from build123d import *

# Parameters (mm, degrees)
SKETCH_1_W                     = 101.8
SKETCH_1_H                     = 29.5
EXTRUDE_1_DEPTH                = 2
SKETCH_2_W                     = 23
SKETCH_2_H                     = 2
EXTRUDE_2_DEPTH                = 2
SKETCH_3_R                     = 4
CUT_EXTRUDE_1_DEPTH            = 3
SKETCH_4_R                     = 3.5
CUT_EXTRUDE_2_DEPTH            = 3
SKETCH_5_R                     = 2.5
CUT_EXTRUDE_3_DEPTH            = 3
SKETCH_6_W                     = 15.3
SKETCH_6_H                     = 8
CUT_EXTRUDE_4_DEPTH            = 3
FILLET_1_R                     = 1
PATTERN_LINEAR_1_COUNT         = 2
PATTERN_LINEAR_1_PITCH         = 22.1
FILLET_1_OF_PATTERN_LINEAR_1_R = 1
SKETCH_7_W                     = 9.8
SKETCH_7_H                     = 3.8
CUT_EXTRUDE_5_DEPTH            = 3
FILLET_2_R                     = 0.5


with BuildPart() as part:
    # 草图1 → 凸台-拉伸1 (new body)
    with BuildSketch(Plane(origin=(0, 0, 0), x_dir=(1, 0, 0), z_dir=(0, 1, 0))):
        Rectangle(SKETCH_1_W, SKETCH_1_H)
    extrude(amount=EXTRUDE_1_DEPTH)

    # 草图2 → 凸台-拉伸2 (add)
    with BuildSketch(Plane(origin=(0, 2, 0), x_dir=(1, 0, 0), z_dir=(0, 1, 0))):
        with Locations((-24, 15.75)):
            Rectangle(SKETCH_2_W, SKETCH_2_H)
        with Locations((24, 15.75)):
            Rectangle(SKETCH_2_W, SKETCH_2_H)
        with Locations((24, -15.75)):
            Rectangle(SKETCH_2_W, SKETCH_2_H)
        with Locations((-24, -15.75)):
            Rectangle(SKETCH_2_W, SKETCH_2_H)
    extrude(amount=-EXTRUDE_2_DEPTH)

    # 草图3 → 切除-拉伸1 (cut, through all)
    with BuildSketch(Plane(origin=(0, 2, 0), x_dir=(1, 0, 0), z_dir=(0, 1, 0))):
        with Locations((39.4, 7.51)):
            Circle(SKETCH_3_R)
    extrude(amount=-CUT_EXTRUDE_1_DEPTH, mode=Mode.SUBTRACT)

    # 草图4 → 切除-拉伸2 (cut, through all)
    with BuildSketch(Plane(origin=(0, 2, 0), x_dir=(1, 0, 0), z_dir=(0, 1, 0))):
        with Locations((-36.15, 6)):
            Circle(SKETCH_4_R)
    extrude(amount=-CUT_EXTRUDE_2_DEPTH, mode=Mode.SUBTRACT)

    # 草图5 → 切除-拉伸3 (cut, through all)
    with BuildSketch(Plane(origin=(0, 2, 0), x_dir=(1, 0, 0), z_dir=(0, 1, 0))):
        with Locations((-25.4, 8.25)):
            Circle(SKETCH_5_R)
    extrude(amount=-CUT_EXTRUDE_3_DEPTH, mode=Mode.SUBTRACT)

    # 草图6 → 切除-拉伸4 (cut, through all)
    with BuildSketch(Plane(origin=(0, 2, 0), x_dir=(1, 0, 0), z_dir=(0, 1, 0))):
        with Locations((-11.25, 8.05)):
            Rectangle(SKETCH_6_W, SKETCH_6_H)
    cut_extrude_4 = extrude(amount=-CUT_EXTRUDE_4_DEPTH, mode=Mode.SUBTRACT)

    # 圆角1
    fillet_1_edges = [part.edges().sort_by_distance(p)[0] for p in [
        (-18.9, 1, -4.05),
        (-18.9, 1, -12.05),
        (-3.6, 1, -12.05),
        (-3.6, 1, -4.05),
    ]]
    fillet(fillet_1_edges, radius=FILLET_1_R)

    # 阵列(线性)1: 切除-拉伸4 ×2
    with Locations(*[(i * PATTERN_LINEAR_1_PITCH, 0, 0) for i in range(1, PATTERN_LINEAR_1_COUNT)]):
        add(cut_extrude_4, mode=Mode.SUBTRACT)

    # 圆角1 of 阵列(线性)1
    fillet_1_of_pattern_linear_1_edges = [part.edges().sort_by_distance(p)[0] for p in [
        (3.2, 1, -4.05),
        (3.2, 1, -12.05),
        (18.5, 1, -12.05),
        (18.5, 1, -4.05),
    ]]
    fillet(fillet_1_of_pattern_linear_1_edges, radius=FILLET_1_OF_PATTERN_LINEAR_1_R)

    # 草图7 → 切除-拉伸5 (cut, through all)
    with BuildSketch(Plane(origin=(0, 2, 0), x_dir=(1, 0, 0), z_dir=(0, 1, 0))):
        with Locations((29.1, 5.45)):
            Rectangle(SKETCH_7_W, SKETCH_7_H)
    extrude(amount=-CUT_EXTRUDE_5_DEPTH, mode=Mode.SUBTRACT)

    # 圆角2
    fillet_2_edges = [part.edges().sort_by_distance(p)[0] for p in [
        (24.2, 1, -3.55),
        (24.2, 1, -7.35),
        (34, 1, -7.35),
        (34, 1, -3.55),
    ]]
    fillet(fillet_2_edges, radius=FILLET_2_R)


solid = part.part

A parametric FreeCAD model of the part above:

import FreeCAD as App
import Part
import Sketcher
from FreeCAD import Vector


def edges_at(feature, points):
    """Names of the edges that pass closest to the given points."""
    edges = feature.Shape.Edges
    near = lambda p: min(range(len(edges)), key=lambda i: edges[i].distToShape(Part.Vertex(*p))[0])
    return sorted({f"Edge{near(p) + 1}" for p in points})

doc = App.newDocument("Part")
params = doc.addObject("Spreadsheet::Sheet", "Params")
for row, (alias, value) in enumerate([
    ("sketch1_width", "101.8 mm"),
    ("sketch1_height", "29.5 mm"),
    ("pad1_length", "2 mm"),
    ("sketch2_width", "23 mm"),
    ("sketch2_height", "2 mm"),
    ("pad2_length", "2 mm"),
    ("sketch3_diameter", "8 mm"),
    ("sketch4_diameter", "7 mm"),
    ("sketch5_diameter", "5 mm"),
    ("sketch6_height", "8 mm"),
    ("sketch6_width", "15.3 mm"),
    ("fillet_radius", "1 mm"),
    ("linearpattern_pitch", "22.1 mm"),
    ("fillet2_radius", "1 mm"),
    ("sketch7_width", "9.8 mm"),
    ("sketch7_height", "3.8 mm"),
    ("fillet3_radius", "0.5 mm"),
], start=1):
    params.set(f"A{row}", alias)
    params.set(f"B{row}", "=" + value)
    params.setAlias(f"B{row}", alias)

body = doc.addObject("PartDesign::Body", "Body")

sketch1 = body.newObject("Sketcher::SketchObject", "Sketch")
sketch1.AttachmentSupport = (doc.getObject("XZ_Plane"), [""])
sketch1.MapMode = "FlatFace"
sketch1.addGeometry(Part.LineSegment(Vector(-51, -15, 0), Vector(-51, 15, 0)), False)
sketch1.addGeometry(Part.LineSegment(Vector(-51, 15, 0), Vector(51, 15, 0)), False)
sketch1.addGeometry(Part.LineSegment(Vector(51, 15, 0), Vector(51, -15, 0)), False)
sketch1.addGeometry(Part.LineSegment(Vector(51, -15, 0), Vector(-51, -15, 0)), False)
sketch1.addConstraint(Sketcher.Constraint("Coincident", 0, 2, 1, 1))
sketch1.addConstraint(Sketcher.Constraint("Coincident", 1, 2, 2, 1))
sketch1.addConstraint(Sketcher.Constraint("Coincident", 2, 2, 3, 1))
sketch1.addConstraint(Sketcher.Constraint("Coincident", 3, 2, 0, 1))
sketch1.addConstraint(Sketcher.Constraint("Vertical", 0))
sketch1.addConstraint(Sketcher.Constraint("Horizontal", 1))
sketch1.addConstraint(Sketcher.Constraint("Vertical", 2))
sketch1.addConstraint(Sketcher.Constraint("Horizontal", 3))
sketch1.addConstraint(Sketcher.Constraint("Symmetric", 0, 2, 2, 2, -1, 1))
sketch1.addConstraint(Sketcher.Constraint("DistanceX", 1, 1, 1, 2, 101.8))
sketch1.addConstraint(Sketcher.Constraint("DistanceY", 0, 1, 0, 2, 29.5))
sketch1.setExpression("Constraints[9]", "Params.sketch1_width")
sketch1.setExpression("Constraints[10]", "Params.sketch1_height")
pad1 = body.newObject("PartDesign::Pad", "Pad")
pad1.Profile = sketch1
pad1.setExpression("Length", "Params.pad1_length")
pad1.Reversed = True

sketch2 = body.newObject("Sketcher::SketchObject", "Sketch001")
sketch2.AttachmentSupport = (doc.getObject("XZ_Plane"), [""])
sketch2.MapMode = "FlatFace"
sketch2.AttachmentOffset = App.Placement(Vector(0, 0, -2), App.Rotation())
sketch2.addGeometry(Part.LineSegment(Vector(-35.5, -16.8, 0), Vector(-35.5, -14.8, 0)), False)
sketch2.addGeometry(Part.LineSegment(Vector(-35.5, -14.8, 0), Vector(-12.5, -14.8, 0)), False)
sketch2.addGeometry(Part.LineSegment(Vector(-12.5, -14.8, 0), Vector(-12.5, -16.8, 0)), False)
sketch2.addGeometry(Part.LineSegment(Vector(-12.5, -16.8, 0), Vector(-35.5, -16.8, 0)), False)
sketch2.addGeometry(Part.LineSegment(Vector(12.5, -16.8, 0), Vector(12.5, -14.8, 0)), False)
sketch2.addGeometry(Part.LineSegment(Vector(12.5, -14.8, 0), Vector(35.5, -14.8, 0)), False)
sketch2.addGeometry(Part.LineSegment(Vector(35.5, -14.8, 0), Vector(35.5, -16.8, 0)), False)
sketch2.addGeometry(Part.LineSegment(Vector(35.5, -16.8, 0), Vector(12.5, -16.8, 0)), False)
sketch2.addGeometry(Part.LineSegment(Vector(12.5, 14.8, 0), Vector(12.5, 16.8, 0)), False)
sketch2.addGeometry(Part.LineSegment(Vector(12.5, 16.8, 0), Vector(35.5, 16.8, 0)), False)
sketch2.addGeometry(Part.LineSegment(Vector(35.5, 16.8, 0), Vector(35.5, 14.8, 0)), False)
sketch2.addGeometry(Part.LineSegment(Vector(35.5, 14.8, 0), Vector(12.5, 14.8, 0)), False)
sketch2.addGeometry(Part.LineSegment(Vector(-35.5, 14.8, 0), Vector(-35.5, 16.8, 0)), False)
sketch2.addGeometry(Part.LineSegment(Vector(-35.5, 16.8, 0), Vector(-12.5, 16.8, 0)), False)
sketch2.addGeometry(Part.LineSegment(Vector(-12.5, 16.8, 0), Vector(-12.5, 14.8, 0)), False)
sketch2.addGeometry(Part.LineSegment(Vector(-12.5, 14.8, 0), Vector(-35.5, 14.8, 0)), False)
sketch2.addConstraint(Sketcher.Constraint("Coincident", 0, 2, 1, 1))
sketch2.addConstraint(Sketcher.Constraint("Coincident", 1, 2, 2, 1))
sketch2.addConstraint(Sketcher.Constraint("Coincident", 2, 2, 3, 1))
sketch2.addConstraint(Sketcher.Constraint("Coincident", 3, 2, 0, 1))
sketch2.addConstraint(Sketcher.Constraint("Coincident", 4, 2, 5, 1))
sketch2.addConstraint(Sketcher.Constraint("Coincident", 5, 2, 6, 1))
sketch2.addConstraint(Sketcher.Constraint("Coincident", 6, 2, 7, 1))
sketch2.addConstraint(Sketcher.Constraint("Coincident", 7, 2, 4, 1))
sketch2.addConstraint(Sketcher.Constraint("Coincident", 8, 2, 9, 1))
sketch2.addConstraint(Sketcher.Constraint("Coincident", 9, 2, 10, 1))
sketch2.addConstraint(Sketcher.Constraint("Coincident", 10, 2, 11, 1))
sketch2.addConstraint(Sketcher.Constraint("Coincident", 11, 2, 8, 1))
sketch2.addConstraint(Sketcher.Constraint("Coincident", 12, 2, 13, 1))
sketch2.addConstraint(Sketcher.Constraint("Coincident", 13, 2, 14, 1))
sketch2.addConstraint(Sketcher.Constraint("Coincident", 14, 2, 15, 1))
sketch2.addConstraint(Sketcher.Constraint("Coincident", 15, 2, 12, 1))
sketch2.addConstraint(Sketcher.Constraint("Vertical", 0))
sketch2.addConstraint(Sketcher.Constraint("Horizontal", 1))
sketch2.addConstraint(Sketcher.Constraint("Vertical", 2))
sketch2.addConstraint(Sketcher.Constraint("Horizontal", 3))
sketch2.addConstraint(Sketcher.Constraint("Vertical", 4))
sketch2.addConstraint(Sketcher.Constraint("Horizontal", 5))
sketch2.addConstraint(Sketcher.Constraint("Vertical", 6))
sketch2.addConstraint(Sketcher.Constraint("Horizontal", 7))
sketch2.addConstraint(Sketcher.Constraint("Vertical", 8))
sketch2.addConstraint(Sketcher.Constraint("Horizontal", 9))
sketch2.addConstraint(Sketcher.Constraint("Vertical", 10))
sketch2.addConstraint(Sketcher.Constraint("Horizontal", 11))
sketch2.addConstraint(Sketcher.Constraint("Vertical", 12))
sketch2.addConstraint(Sketcher.Constraint("Horizontal", 13))
sketch2.addConstraint(Sketcher.Constraint("Vertical", 14))
sketch2.addConstraint(Sketcher.Constraint("Horizontal", 15))
sketch2.addConstraint(Sketcher.Constraint("Symmetric", 2, 2, 8, 2, -1, 1))
sketch2.addConstraint(Sketcher.Constraint("Symmetric", 0, 2, 10, 2, -1, 1))
sketch2.addConstraint(Sketcher.Constraint("Symmetric", 6, 2, 12, 2, -1, 1))
sketch2.addConstraint(Sketcher.Constraint("Symmetric", 4, 2, 14, 2, -1, 1))
sketch2.addConstraint(Sketcher.Constraint("Symmetric", 1, 2, 4, 2, -2))
sketch2.addConstraint(Sketcher.Constraint("Symmetric", 3, 2, 6, 2, -2))
sketch2.addConstraint(Sketcher.Constraint("DistanceX", 1, 1, 1, 2, 23.0))
sketch2.addConstraint(Sketcher.Constraint("DistanceY", 0, 1, 0, 2, 2.0))
sketch2.addConstraint(Sketcher.Constraint("DistanceX", 1, 2, 4, 2, 25.0))
sketch2.addConstraint(Sketcher.Constraint("DistanceY", 4, 2, 8, 2, 31.5))
sketch2.setExpression("Constraints[38]", "Params.sketch2_width")
sketch2.setExpression("Constraints[39]", "Params.sketch2_height")
pad2 = body.newObject("PartDesign::Pad", "Pad001")
pad2.Profile = sketch2
pad2.setExpression("Length", "Params.pad2_length")

sketch3 = body.newObject("Sketcher::SketchObject", "Sketch002")
sketch3.AttachmentSupport = (doc.getObject("XZ_Plane"), [""])
sketch3.MapMode = "FlatFace"
sketch3.AttachmentOffset = App.Placement(Vector(0, 0, -2), App.Rotation())
sketch3.addGeometry(Part.Circle(Vector(39.4, -7.5, 0), Vector(0, 0, 1), 4), False)
sketch3.addConstraint(Sketcher.Constraint("Diameter", 0, 8.0))
sketch3.addConstraint(Sketcher.Constraint("DistanceX", -1, 1, 0, 3, 39.4))
sketch3.addConstraint(Sketcher.Constraint("DistanceY", 0, 3, -1, 1, 7.51))
sketch3.setExpression("Constraints[0]", "Params.sketch3_diameter")
pocket1 = body.newObject("PartDesign::Pocket", "Pocket")
pocket1.Profile = sketch3
pocket1.Type = "ThroughAll"
pocket1.Reversed = True

sketch4 = body.newObject("Sketcher::SketchObject", "Sketch003")
sketch4.AttachmentSupport = (doc.getObject("XZ_Plane"), [""])
sketch4.MapMode = "FlatFace"
sketch4.AttachmentOffset = App.Placement(Vector(0, 0, -2), App.Rotation())
sketch4.addGeometry(Part.Circle(Vector(-36.1, -6, 0), Vector(0, 0, 1), 3.5), False)
sketch4.addConstraint(Sketcher.Constraint("Diameter", 0, 7.0))
sketch4.addConstraint(Sketcher.Constraint("DistanceY", 0, 3, -1, 1, 6.0))
sketch4.addConstraint(Sketcher.Constraint("DistanceX", 0, 3, -1, 1, 36.15))
sketch4.setExpression("Constraints[0]", "Params.sketch4_diameter")
pocket2 = body.newObject("PartDesign::Pocket", "Pocket001")
pocket2.Profile = sketch4
pocket2.Type = "ThroughAll"
pocket2.Reversed = True

sketch5 = body.newObject("Sketcher::SketchObject", "Sketch004")
sketch5.AttachmentSupport = (doc.getObject("XZ_Plane"), [""])
sketch5.MapMode = "FlatFace"
sketch5.AttachmentOffset = App.Placement(Vector(0, 0, -2), App.Rotation())
sketch5.addGeometry(Part.Circle(Vector(-25.4, -8.2, 0), Vector(0, 0, 1), 2.5), False)
sketch5.addConstraint(Sketcher.Constraint("Diameter", 0, 5.0))
sketch5.addConstraint(Sketcher.Constraint("DistanceX", 0, 3, -1, 1, 25.4))
sketch5.addConstraint(Sketcher.Constraint("DistanceY", 0, 3, -1, 1, 8.25))
sketch5.setExpression("Constraints[0]", "Params.sketch5_diameter")
pocket3 = body.newObject("PartDesign::Pocket", "Pocket002")
pocket3.Profile = sketch5
pocket3.Type = "ThroughAll"
pocket3.Reversed = True

sketch6 = body.newObject("Sketcher::SketchObject", "Sketch005")
sketch6.AttachmentSupport = (doc.getObject("XZ_Plane"), [""])
sketch6.MapMode = "FlatFace"
sketch6.AttachmentOffset = App.Placement(Vector(0, 0, -2), App.Rotation())
sketch6.addGeometry(Part.LineSegment(Vector(-19, -12, 0), Vector(-19, -4, 0)), False)
sketch6.addGeometry(Part.LineSegment(Vector(-19, -4, 0), Vector(-4, -4, 0)), False)
sketch6.addGeometry(Part.LineSegment(Vector(-4, -4, 0), Vector(-4, -12, 0)), False)
sketch6.addGeometry(Part.LineSegment(Vector(-4, -12, 0), Vector(-19, -12, 0)), False)
sketch6.addConstraint(Sketcher.Constraint("Coincident", 0, 2, 1, 1))
sketch6.addConstraint(Sketcher.Constraint("Coincident", 1, 2, 2, 1))
sketch6.addConstraint(Sketcher.Constraint("Coincident", 2, 2, 3, 1))
sketch6.addConstraint(Sketcher.Constraint("Coincident", 3, 2, 0, 1))
sketch6.addConstraint(Sketcher.Constraint("Vertical", 0))
sketch6.addConstraint(Sketcher.Constraint("Horizontal", 1))
sketch6.addConstraint(Sketcher.Constraint("Vertical", 2))
sketch6.addConstraint(Sketcher.Constraint("Horizontal", 3))
sketch6.addConstraint(Sketcher.Constraint("DistanceY", 0, 1, 0, 2, 8.0))
sketch6.addConstraint(Sketcher.Constraint("DistanceX", 1, 1, 1, 2, 15.3))
sketch6.addConstraint(Sketcher.Constraint("DistanceX", 0, 2, -1, 1, 18.9))
sketch6.addConstraint(Sketcher.Constraint("DistanceY", 0, 2, -1, 1, 4.05))
sketch6.setExpression("Constraints[8]", "Params.sketch6_height")
sketch6.setExpression("Constraints[9]", "Params.sketch6_width")
pocket4 = body.newObject("PartDesign::Pocket", "Pocket003")
pocket4.Profile = sketch6
pocket4.Type = "ThroughAll"
pocket4.Reversed = True
doc.recompute()

fillet = body.newObject("PartDesign::Fillet", "Fillet")
fillet.Base = (pocket4, edges_at(pocket4, [
    (-18.9, 1, -4.05),
    (-18.9, 1, -12.05),
    (-3.6, 1, -12.05),
    (-3.6, 1, -4.05),
]))
fillet.setExpression("Radius", "Params.fillet_radius")
doc.recompute()

linearpattern = body.newObject("PartDesign::LinearPattern", "LinearPattern")
linearpattern.Originals = [pocket4]
linearpattern.Direction = (doc.getObject("X_Axis"), [""])
linearpattern.Mode = "offset"
linearpattern.setExpression("Offset", "Params.linearpattern_pitch")
linearpattern.Occurrences = 2
body.Tip = linearpattern
doc.recompute()

fillet2 = body.newObject("PartDesign::Fillet", "Fillet001")
fillet2.Base = (linearpattern, edges_at(linearpattern, [
    (3.2, 1, -4.05),
    (3.2, 1, -12.05),
    (18.5, 1, -12.05),
    (18.5, 1, -4.05),
]))
fillet2.setExpression("Radius", "Params.fillet2_radius")

sketch7 = body.newObject("Sketcher::SketchObject", "Sketch006")
sketch7.AttachmentSupport = (doc.getObject("XZ_Plane"), [""])
sketch7.MapMode = "FlatFace"
sketch7.AttachmentOffset = App.Placement(Vector(0, 0, -2), App.Rotation())
sketch7.addGeometry(Part.LineSegment(Vector(24.2, -7.3, 0), Vector(24.2, -3.5, 0)), False)
sketch7.addGeometry(Part.LineSegment(Vector(24.2, -3.5, 0), Vector(34, -3.5, 0)), False)
sketch7.addGeometry(Part.LineSegment(Vector(34, -3.5, 0), Vector(34, -7.3, 0)), False)
sketch7.addGeometry(Part.LineSegment(Vector(34, -7.3, 0), Vector(24.2, -7.3, 0)), False)
sketch7.addConstraint(Sketcher.Constraint("Coincident", 0, 2, 1, 1))
sketch7.addConstraint(Sketcher.Constraint("Coincident", 1, 2, 2, 1))
sketch7.addConstraint(Sketcher.Constraint("Coincident", 2, 2, 3, 1))
sketch7.addConstraint(Sketcher.Constraint("Coincident", 3, 2, 0, 1))
sketch7.addConstraint(Sketcher.Constraint("Vertical", 0))
sketch7.addConstraint(Sketcher.Constraint("Horizontal", 1))
sketch7.addConstraint(Sketcher.Constraint("Vertical", 2))
sketch7.addConstraint(Sketcher.Constraint("Horizontal", 3))
sketch7.addConstraint(Sketcher.Constraint("DistanceX", 1, 1, 1, 2, 9.8))
sketch7.addConstraint(Sketcher.Constraint("DistanceY", 0, 1, 0, 2, 3.8))
sketch7.addConstraint(Sketcher.Constraint("DistanceX", -1, 1, 1, 2, 34.0))
sketch7.addConstraint(Sketcher.Constraint("DistanceY", 0, 2, -1, 1, 3.55))
sketch7.setExpression("Constraints[8]", "Params.sketch7_width")
sketch7.setExpression("Constraints[9]", "Params.sketch7_height")
pocket5 = body.newObject("PartDesign::Pocket", "Pocket004")
pocket5.Profile = sketch7
pocket5.Type = "ThroughAll"
pocket5.Reversed = True
doc.recompute()

fillet3 = body.newObject("PartDesign::Fillet", "Fillet002")
fillet3.Base = (pocket5, edges_at(pocket5, [
    (24.2, 1, -3.55),
    (24.2, 1, -7.35),
    (34, 1, -7.35),
    (34, 1, -3.55),
]))
fillet3.setExpression("Radius", "Params.fillet3_radius")

doc.recompute()
